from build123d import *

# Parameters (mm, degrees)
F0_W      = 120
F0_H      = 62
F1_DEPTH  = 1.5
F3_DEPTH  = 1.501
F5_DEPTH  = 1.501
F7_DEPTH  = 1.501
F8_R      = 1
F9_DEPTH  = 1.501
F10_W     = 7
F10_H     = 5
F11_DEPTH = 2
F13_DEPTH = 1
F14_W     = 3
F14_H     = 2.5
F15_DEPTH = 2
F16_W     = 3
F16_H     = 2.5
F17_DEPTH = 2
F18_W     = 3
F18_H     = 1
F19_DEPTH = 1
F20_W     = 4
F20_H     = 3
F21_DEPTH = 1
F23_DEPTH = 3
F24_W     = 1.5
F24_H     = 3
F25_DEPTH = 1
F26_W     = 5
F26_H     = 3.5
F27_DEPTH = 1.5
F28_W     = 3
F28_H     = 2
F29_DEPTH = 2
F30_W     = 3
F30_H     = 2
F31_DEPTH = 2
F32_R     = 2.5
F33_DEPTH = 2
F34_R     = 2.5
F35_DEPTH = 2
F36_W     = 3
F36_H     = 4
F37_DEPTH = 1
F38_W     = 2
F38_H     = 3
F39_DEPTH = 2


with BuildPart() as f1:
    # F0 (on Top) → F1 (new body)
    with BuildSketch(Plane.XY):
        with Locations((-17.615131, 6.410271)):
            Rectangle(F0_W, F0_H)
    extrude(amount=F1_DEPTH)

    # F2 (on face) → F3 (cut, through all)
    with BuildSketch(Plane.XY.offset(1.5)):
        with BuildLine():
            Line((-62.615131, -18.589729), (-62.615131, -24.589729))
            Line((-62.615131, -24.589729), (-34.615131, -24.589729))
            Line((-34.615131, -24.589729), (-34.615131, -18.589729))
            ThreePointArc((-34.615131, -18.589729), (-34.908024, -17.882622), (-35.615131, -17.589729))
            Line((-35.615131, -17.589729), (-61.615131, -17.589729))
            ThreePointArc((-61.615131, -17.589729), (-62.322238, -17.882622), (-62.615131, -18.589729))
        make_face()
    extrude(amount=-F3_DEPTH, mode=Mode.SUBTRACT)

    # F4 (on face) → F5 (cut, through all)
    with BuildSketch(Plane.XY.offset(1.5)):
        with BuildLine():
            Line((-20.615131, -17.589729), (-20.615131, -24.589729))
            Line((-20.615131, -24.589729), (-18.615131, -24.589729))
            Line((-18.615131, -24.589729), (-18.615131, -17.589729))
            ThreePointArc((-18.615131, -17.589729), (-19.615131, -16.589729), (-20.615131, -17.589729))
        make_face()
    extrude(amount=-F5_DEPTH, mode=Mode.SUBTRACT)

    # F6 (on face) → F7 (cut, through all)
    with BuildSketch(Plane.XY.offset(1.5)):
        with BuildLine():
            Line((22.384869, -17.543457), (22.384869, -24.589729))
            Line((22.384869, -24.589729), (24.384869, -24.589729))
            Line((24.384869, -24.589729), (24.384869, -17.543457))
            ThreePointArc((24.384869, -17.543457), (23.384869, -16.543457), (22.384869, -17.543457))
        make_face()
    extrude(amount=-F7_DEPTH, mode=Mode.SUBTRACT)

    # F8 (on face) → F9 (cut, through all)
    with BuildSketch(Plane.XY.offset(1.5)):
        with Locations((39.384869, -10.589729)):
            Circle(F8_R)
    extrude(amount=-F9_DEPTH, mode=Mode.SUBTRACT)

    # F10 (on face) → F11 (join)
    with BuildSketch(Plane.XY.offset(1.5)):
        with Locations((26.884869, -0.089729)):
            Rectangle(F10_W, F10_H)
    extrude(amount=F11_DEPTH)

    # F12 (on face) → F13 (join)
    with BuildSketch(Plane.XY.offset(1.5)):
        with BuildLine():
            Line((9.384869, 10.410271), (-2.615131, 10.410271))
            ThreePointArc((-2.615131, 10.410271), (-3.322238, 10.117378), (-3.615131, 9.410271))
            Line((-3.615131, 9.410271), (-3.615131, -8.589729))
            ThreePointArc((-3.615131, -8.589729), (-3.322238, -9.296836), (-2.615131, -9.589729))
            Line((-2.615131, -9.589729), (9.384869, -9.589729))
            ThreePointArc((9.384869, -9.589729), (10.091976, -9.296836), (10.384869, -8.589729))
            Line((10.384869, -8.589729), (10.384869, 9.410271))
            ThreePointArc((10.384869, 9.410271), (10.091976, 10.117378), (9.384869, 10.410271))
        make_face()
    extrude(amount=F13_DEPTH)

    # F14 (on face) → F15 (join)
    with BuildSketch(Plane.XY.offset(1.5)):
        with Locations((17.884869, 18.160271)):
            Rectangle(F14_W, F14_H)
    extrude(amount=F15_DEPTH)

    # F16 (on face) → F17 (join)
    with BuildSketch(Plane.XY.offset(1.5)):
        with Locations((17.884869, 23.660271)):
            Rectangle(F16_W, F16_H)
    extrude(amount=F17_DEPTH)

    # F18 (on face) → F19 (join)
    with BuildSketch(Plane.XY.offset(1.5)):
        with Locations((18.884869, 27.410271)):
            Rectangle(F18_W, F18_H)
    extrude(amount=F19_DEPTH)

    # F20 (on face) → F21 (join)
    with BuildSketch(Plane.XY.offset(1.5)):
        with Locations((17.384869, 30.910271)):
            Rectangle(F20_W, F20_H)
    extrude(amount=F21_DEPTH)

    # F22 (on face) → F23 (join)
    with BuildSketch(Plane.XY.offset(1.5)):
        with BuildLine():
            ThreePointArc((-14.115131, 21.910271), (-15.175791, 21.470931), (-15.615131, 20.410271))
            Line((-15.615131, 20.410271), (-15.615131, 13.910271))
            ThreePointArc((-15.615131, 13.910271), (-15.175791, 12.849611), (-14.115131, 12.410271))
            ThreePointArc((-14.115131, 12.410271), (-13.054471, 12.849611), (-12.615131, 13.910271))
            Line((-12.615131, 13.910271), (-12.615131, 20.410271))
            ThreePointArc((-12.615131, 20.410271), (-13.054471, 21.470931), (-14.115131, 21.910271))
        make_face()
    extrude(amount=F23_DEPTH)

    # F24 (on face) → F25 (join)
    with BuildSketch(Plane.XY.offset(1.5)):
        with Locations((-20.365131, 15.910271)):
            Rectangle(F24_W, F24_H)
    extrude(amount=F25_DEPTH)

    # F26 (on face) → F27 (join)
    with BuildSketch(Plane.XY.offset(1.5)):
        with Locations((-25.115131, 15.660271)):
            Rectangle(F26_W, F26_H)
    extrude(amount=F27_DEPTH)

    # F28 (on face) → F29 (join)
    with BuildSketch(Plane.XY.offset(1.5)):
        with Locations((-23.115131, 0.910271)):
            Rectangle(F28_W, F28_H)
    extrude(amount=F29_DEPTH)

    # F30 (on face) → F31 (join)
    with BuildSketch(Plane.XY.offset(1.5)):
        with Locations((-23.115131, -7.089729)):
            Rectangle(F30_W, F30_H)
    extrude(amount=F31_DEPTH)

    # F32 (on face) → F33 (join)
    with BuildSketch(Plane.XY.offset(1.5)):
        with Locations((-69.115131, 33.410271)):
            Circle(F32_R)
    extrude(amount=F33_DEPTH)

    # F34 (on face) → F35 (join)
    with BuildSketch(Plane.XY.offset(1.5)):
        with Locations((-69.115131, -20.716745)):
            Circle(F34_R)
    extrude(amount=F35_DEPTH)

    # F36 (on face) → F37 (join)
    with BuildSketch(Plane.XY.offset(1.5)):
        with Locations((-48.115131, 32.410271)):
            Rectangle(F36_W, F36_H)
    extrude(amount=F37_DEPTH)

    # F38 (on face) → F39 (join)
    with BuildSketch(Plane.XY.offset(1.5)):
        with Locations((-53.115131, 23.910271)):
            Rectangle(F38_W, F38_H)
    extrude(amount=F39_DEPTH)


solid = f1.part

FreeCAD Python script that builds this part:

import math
import FreeCAD as App
import Part
import Sketcher
Q = App.Units.Quantity


def add_polygon(sketch, points):
    """Adds a closed chain of lines whose ends are joined by coincident constraints."""
    first, n = sketch.GeometryCount, len(points)
    for a, b in zip(points, points[1:] + points[:1]):
        sketch.addGeometry(Part.LineSegment(App.Vector(*a, 0), App.Vector(*b, 0)), False)
    for i in range(n):
        sketch.addConstraint(Sketcher.Constraint("Coincident", first + i, 2, first + (i + 1) % n, 1))

doc = App.newDocument("Part")
body = doc.addObject("PartDesign::Body", "Body")

# Sketch on XY plane
sketch1 = body.newObject("Sketcher::SketchObject", "Sketch")
sketch1.AttachmentSupport = (doc.getObject("XY_Plane"), [""])
sketch1.MapMode = "FlatFace"
add_polygon(sketch1, [(-78, 37), (-78, -25), (42, -25), (42, 37)])  # lines 0-3
sketch1.addConstraint([
    Sketcher.Constraint("Vertical", 0),
    Sketcher.Constraint("Horizontal", 1),
    Sketcher.Constraint("Vertical", 2),
    Sketcher.Constraint("Horizontal", 3),
    Sketcher.Constraint("DistanceX", 1, 1, 1, 2, Q("120 mm")),
    Sketcher.Constraint("DistanceY", 0, 2, 0, 1, Q("62 mm")),
    Sketcher.Constraint("DistanceX", 0, 2, -1, 1, Q("77.615131 mm")),
    Sketcher.Constraint("DistanceY", 0, 2, -1, 1, Q("24.589729 mm")),
])
pad1 = body.newObject("PartDesign::Pad", "Pad")
pad1.Profile = sketch1
pad1.Length = 1.5

# Sketch on XY plane
sketch2 = body.newObject("Sketcher::SketchObject", "Sketch001")
sketch2.AttachmentSupport = (doc.getObject("XY_Plane"), [""])
sketch2.MapMode = "FlatFace"
sketch2.AttachmentOffset = App.Placement(App.Vector(0, 0, 1.5), App.Rotation())
sketch2.addGeometry([
    Part.LineSegment(App.Vector(-62.6, -18.6, 0), App.Vector(-62.6, -24.6, 0)),  # 0
    Part.LineSegment(App.Vector(-62.6, -24.6, 0), App.Vector(-34.6, -24.6, 0)),  # 1
    Part.LineSegment(App.Vector(-34.6, -24.6, 0), App.Vector(-34.6, -18.6, 0)),  # 2
    Part.ArcOfCircle(Part.Circle(App.Vector(-35.6, -18.6, 0), App.Vector(0, 0, 1), 1), math.radians(0), math.radians(90)),  # 3
    Part.LineSegment(App.Vector(-35.6, -17.6, 0), App.Vector(-61.6, -17.6, 0)),  # 4
    Part.ArcOfCircle(Part.Circle(App.Vector(-61.6, -18.6, 0), App.Vector(0, 0, 1), 1), math.radians(90), math.radians(180)),  # 5
], False)
sketch2.addConstraint([
    Sketcher.Constraint("Coincident", 0, 2, 1, 1),
    Sketcher.Constraint("Coincident", 1, 2, 2, 1),
    Sketcher.Constraint("Tangent", 2, 2, 3, 1),
    Sketcher.Constraint("Tangent", 3, 2, 4, 1),
    Sketcher.Constraint("Tangent", 4, 2, 5, 1),
    Sketcher.Constraint("Tangent", 5, 2, 0, 1),
    Sketcher.Constraint("Vertical", 0),
    Sketcher.Constraint("Horizontal", 1),
    Sketcher.Constraint("Vertical", 2),
    Sketcher.Constraint("Horizontal", 4),
    Sketcher.Constraint("Equal", 3, 5),
    Sketcher.Constraint("Radius", 3, Q("0.999999 mm")),
    Sketcher.Constraint("DistanceX", 1, 1, 1, 2, Q("28 mm")),
    Sketcher.Constraint("DistanceY", 0, 2, 0, 1, Q("6 mm")),
    Sketcher.Constraint("DistanceX", 3, 3, -1, 1, Q("35.61513 mm")),
    Sketcher.Constraint("DistanceY", 3, 3, -1, 1, Q("18.589728 mm")),
])
pocket1 = body.newObject("PartDesign::Pocket", "Pocket")
pocket1.Profile = sketch2
pocket1.Type = "ThroughAll"

# Sketch on XY plane
sketch3 = body.newObject("Sketcher::SketchObject", "Sketch002")
sketch3.AttachmentSupport = (doc.getObject("XY_Plane"), [""])
sketch3.MapMode = "FlatFace"
sketch3.AttachmentOffset = App.Placement(App.Vector(0, 0, 1.5), App.Rotation())
sketch3.addGeometry([
    Part.LineSegment(App.Vector(-20.6, -17.6, 0), App.Vector(-20.6, -24.6, 0)),
    Part.LineSegment(App.Vector(-20.6, -24.6, 0), App.Vector(-18.6, -24.6, 0)),
    Part.LineSegment(App.Vector(-18.6, -24.6, 0), App.Vector(-18.6, -17.6, 0)),
    Part.ArcOfCircle(Part.Circle(App.Vector(-19.6, -17.6, 0), App.Vector(0, 0, 1), 1), math.radians(0), math.radians(180)),
], False)
sketch3.addConstraint([
    Sketcher.Constraint("Coincident", 0, 2, 1, 1),
    Sketcher.Constraint("Coincident", 1, 2, 2, 1),
    Sketcher.Constraint("Tangent", 2, 2, 3, 1),
    Sketcher.Constraint("Tangent", 3, 2, 0, 1),
    Sketcher.Constraint("Vertical", 0),
    Sketcher.Constraint("Horizontal", 1),
    Sketcher.Constraint("Vertical", 2),
    Sketcher.Constraint("Radius", 3, Q("1 mm")),
    Sketcher.Constraint("DistanceY", 0, 2, 0, 1, Q("7 mm")),
    Sketcher.Constraint("DistanceX", 3, 3, -1, 1, Q("19.615131 mm")),
    Sketcher.Constraint("DistanceY", 3, 3, -1, 1, Q("17.589729 mm")),
])
pocket2 = body.newObject("PartDesign::Pocket", "Pocket001")
pocket2.Profile = sketch3
pocket2.Type = "ThroughAll"

# Sketch on XY plane
sketch4 = body.newObject("Sketcher::SketchObject", "Sketch003")
sketch4.AttachmentSupport = (doc.getObject("XY_Plane"), [""])
sketch4.MapMode = "FlatFace"
sketch4.AttachmentOffset = App.Placement(App.Vector(0, 0, 1.5), App.Rotation())
sketch4.addGeometry([
    Part.LineSegment(App.Vector(22.4, -17.5, 0), App.Vector(22.4, -24.6, 0)),
    Part.LineSegment(App.Vector(22.4, -24.6, 0), App.Vector(24.4, -24.6, 0)),
    Part.LineSegment(App.Vector(24.4, -24.6, 0), App.Vector(24.4, -17.5, 0)),
    Part.ArcOfCircle(Part.Circle(App.Vector(23.4, -17.5, 0), App.Vector(0, 0, 1), 1), math.radians(0), math.radians(180)),
], False)
sketch4.addConstraint([
    Sketcher.Constraint("Coincident", 0, 2, 1, 1),
    Sketcher.Constraint("Coincident", 1, 2, 2, 1),
    Sketcher.Constraint("Tangent", 2, 2, 3, 1),
    Sketcher.Constraint("Tangent", 3, 2, 0, 1),
    Sketcher.Constraint("Vertical", 0),
    Sketcher.Constraint("Horizontal", 1),
    Sketcher.Constraint("Vertical", 2),
    Sketcher.Constraint("Radius", 3, Q("1 mm")),
    Sketcher.Constraint("DistanceY", 0, 2, 0, 1, Q("7.046272 mm")),
    Sketcher.Constraint("DistanceX", -1, 1, 3, 3, Q("23.384869 mm")),
    Sketcher.Constraint("DistanceY", 0, 2, -1, 1, Q("24.589729 mm")),
])
pocket3 = body.newObject("PartDesign::Pocket", "Pocket002")
pocket3.Profile = sketch4
pocket3.Type = "ThroughAll"

# Sketch on XY plane
sketch5 = body.newObject("Sketcher::SketchObject", "Sketch004")
sketch5.AttachmentSupport = (doc.getObject("XY_Plane"), [""])
sketch5.MapMode = "FlatFace"
sketch5.AttachmentOffset = App.Placement(App.Vector(0, 0, 1.5), App.Rotation())
sketch5.addGeometry(Part.Circle(App.Vector(39.4, -10.6, 0), App.Vector(0, 0, 1), 1), False)
sketch5.addConstraint([
    Sketcher.Constraint("Diameter", 0, Q("2 mm")),
    Sketcher.Constraint("DistanceX", -1, 1, 0, 3, Q("39.384869 mm")),
    Sketcher.Constraint("DistanceY", 0, 3, -1, 1, Q("10.589729 mm")),
])
pocket4 = body.newObject("PartDesign::Pocket", "Pocket003")
pocket4.Profile = sketch5
pocket4.Type = "ThroughAll"

# Sketch on XY plane
sketch6 = body.newObject("Sketcher::SketchObject", "Sketch005")
sketch6.AttachmentSupport = (doc.getObject("XY_Plane"), [""])
sketch6.MapMode = "FlatFace"
sketch6.AttachmentOffset = App.Placement(App.Vector(0, 0, 1.5), App.Rotation())
add_polygon(sketch6, [(23, 2), (23, -3), (30, -3), (30, 2)])  # lines 0-3
sketch6.addConstraint([
    Sketcher.Constraint("Vertical", 0),
    Sketcher.Constraint("Horizontal", 1),
    Sketcher.Constraint("Vertical", 2),
    Sketcher.Constraint("Horizontal", 3),
    Sketcher.Constraint("DistanceX", 1, 1, 1, 2, Q("7 mm")),
    Sketcher.Constraint("DistanceY", 0, 2, 0, 1, Q("5 mm")),
    Sketcher.Constraint("DistanceX", -1, 1, 0, 2, Q("23.384869 mm")),
    Sketcher.Constraint("DistanceY", 0, 2, -1, 1, Q("2.589729 mm")),
])
pad2 = body.newObject("PartDesign::Pad", "Pad001")
pad2.Profile = sketch6
pad2.Length = 2

# Sketch on XY plane
sketch7 = body.newObject("Sketcher::SketchObject", "Sketch006")
sketch7.AttachmentSupport = (doc.getObject("XY_Plane"), [""])
sketch7.MapMode = "FlatFace"
sketch7.AttachmentOffset = App.Placement(App.Vector(0, 0, 1.5), App.Rotation())
sketch7.addGeometry([
    Part.LineSegment(App.Vector(9.4, 10.4, 0), App.Vector(-2.6, 10.4, 0)),  # 0
    Part.ArcOfCircle(Part.Circle(App.Vector(-2.6, 9.4, 0), App.Vector(0, 0, 1), 1), math.radians(90), math.radians(180)),  # 1
    Part.LineSegment(App.Vector(-3.6, 9.4, 0), App.Vector(-3.6, -8.6, 0)),  # 2
    Part.ArcOfCircle(Part.Circle(App.Vector(-2.6, -8.6, 0), App.Vector(0, 0, 1), 1), math.radians(180), math.radians(270)),  # 3
    Part.LineSegment(App.Vector(-2.6, -9.6, 0), App.Vector(9.4, -9.6, 0)),  # 4
    Part.ArcOfCircle(Part.Circle(App.Vector(9.4, -8.6, 0), App.Vector(0, 0, 1), 1), math.radians(-90), math.radians(0)),  # 5
    Part.LineSegment(App.Vector(10.4, -8.6, 0), App.Vector(10.4, 9.4, 0)),  # 6
    Part.ArcOfCircle(Part.Circle(App.Vector(9.4, 9.4, 0), App.Vector(0, 0, 1), 1), math.radians(0), math.radians(90)),  # 7
], False)
sketch7.addConstraint([
    Sketcher.Constraint("Tangent", 0, 2, 1, 1),
    Sketcher.Constraint("Tangent", 1, 2, 2, 1),
    Sketcher.Constraint("Tangent", 2, 2, 3, 1),
    Sketcher.Constraint("Tangent", 3, 2, 4, 1),
    Sketcher.Constraint("Tangent", 4, 2, 5, 1),
    Sketcher.Constraint("Tangent", 5, 2, 6, 1),
    Sketcher.Constraint("Tangent", 6, 2, 7, 1),
    Sketcher.Constraint("Tangent", 7, 2, 0, 1),
    Sketcher.Constraint("Horizontal", 0),
    Sketcher.Constraint("Vertical", 2),
    Sketcher.Constraint("Horizontal", 4),
    Sketcher.Constraint("Vertical", 6),
    Sketcher.Constraint("Equal", 1, 3),
    Sketcher.Constraint("Equal", 3, 5),
    Sketcher.Constraint("Equal", 5, 7),
    Sketcher.Constraint("Radius", 1, Q("0.999999 mm")),
    Sketcher.Constraint("DistanceX", 0, 2, 0, 1, Q("12 mm")),
    Sketcher.Constraint("DistanceY", 2, 2, 2, 1, Q("18 mm")),
    Sketcher.Constraint("DistanceX", 1, 3, -1, 1, Q("2.615132 mm")),
    Sketcher.Constraint("DistanceY", -1, 1, 1, 3, Q("9.410272 mm")),
])
pad3 = body.newObject("PartDesign::Pad", "Pad002")
pad3.Profile = sketch7
pad3.Length = 1

# Sketch on XY plane
sketch8 = body.newObject("Sketcher::SketchObject", "Sketch007")
sketch8.AttachmentSupport = (doc.getObject("XY_Plane"), [""])
sketch8.MapMode = "FlatFace"
sketch8.AttachmentOffset = App.Placement(App.Vector(0, 0, 1.5), App.Rotation())
add_polygon(sketch8, [(16.4, 19.4), (16.4, 16.9), (19.4, 16.9), (19.4, 19.4)])  # lines 0-3
sketch8.addConstraint([
    Sketcher.Constraint("Vertical", 0),
    Sketcher.Constraint("Horizontal", 1),
    Sketcher.Constraint("Vertical", 2),
    Sketcher.Constraint("Horizontal", 3),
    Sketcher.Constraint("DistanceX", 1, 1, 1, 2, Q("3 mm")),
    Sketcher.Constraint("DistanceY", 0, 2, 0, 1, Q("2.5 mm")),
    Sketcher.Constraint("DistanceX", -1, 1, 0, 2, Q("16.384869 mm")),
    Sketcher.Constraint("DistanceY", -1, 1, 0, 2, Q("16.910271 mm")),
])
pad4 = body.newObject("PartDesign::Pad", "Pad003")
pad4.Profile = sketch8
pad4.Length = 2

# Sketch on XY plane
sketch9 = body.newObject("Sketcher::SketchObject", "Sketch008")
sketch9.AttachmentSupport = (doc.getObject("XY_Plane"), [""])
sketch9.MapMode = "FlatFace"
sketch9.AttachmentOffset = App.Placement(App.Vector(0, 0, 1.5), App.Rotation())
add_polygon(sketch9, [(16.4, 24.9), (16.4, 22.4), (19.4, 22.4), (19.4, 24.9)])  # lines 0-3
sketch9.addConstraint([
    Sketcher.Constraint("Vertical", 0),
    Sketcher.Constraint("Horizontal", 1),
    Sketcher.Constraint("Vertical", 2),
    Sketcher.Constraint("Horizontal", 3),
    Sketcher.Constraint("DistanceX", 1, 1, 1, 2, Q("3 mm")),
    Sketcher.Constraint("DistanceY", 0, 2, 0, 1, Q("2.5 mm")),
    Sketcher.Constraint("DistanceX", -1, 1, 0, 2, Q("16.384869 mm")),
    Sketcher.Constraint("DistanceY", -1, 1, 0, 2, Q("22.410271 mm")),
])
pad5 = body.newObject("PartDesign::Pad", "Pad004")
pad5.Profile = sketch9
pad5.Length = 2

# Sketch on XY plane
sketch10 = body.newObject("Sketcher::SketchObject", "Sketch009")
sketch10.AttachmentSupport = (doc.getObject("XY_Plane"), [""])
sketch10.MapMode = "FlatFace"
sketch10.AttachmentOffset = App.Placement(App.Vector(0, 0, 1.5), App.Rotation())
add_polygon(sketch10, [(17.4, 27.9), (17.4, 26.9), (20.4, 26.9), (20.4, 27.9)])  # lines 0-3
sketch10.addConstraint([
    Sketcher.Constraint("Vertical", 0),
    Sketcher.Constraint("Horizontal", 1),
    Sketcher.Constraint("Vertical", 2),
    Sketcher.Constraint("Horizontal", 3),
    Sketcher.Constraint("DistanceX", 1, 1, 1, 2, Q("3 mm")),
    Sketcher.Constraint("DistanceY", 0, 2, 0, 1, Q("1 mm")),
    Sketcher.Constraint("DistanceX", -1, 1, 0, 2, Q("17.384869 mm")),
    Sketcher.Constraint("DistanceY", -1, 1, 0, 2, Q("26.910271 mm")),
])
pad6 = body.newObject("PartDesign::Pad", "Pad005")
pad6.Profile = sketch10
pad6.Length = 1

# Sketch on XY plane
sketch11 = body.newObject("Sketcher::SketchObject", "Sketch010")
sketch11.AttachmentSupport = (doc.getObject("XY_Plane"), [""])
sketch11.MapMode = "FlatFace"
sketch11.AttachmentOffset = App.Placement(App.Vector(0, 0, 1.5), App.Rotation())
add_polygon(sketch11, [(15.4, 32.4), (15.4, 29.4), (19.4, 29.4), (19.4, 32.4)])  # lines 0-3
sketch11.addConstraint([
    Sketcher.Constraint("Vertical", 0),
    Sketcher.Constraint("Horizontal", 1),
    Sketcher.Constraint("Vertical", 2),
    Sketcher.Constraint("Horizontal", 3),
    Sketcher.Constraint("DistanceX", 1, 1, 1, 2, Q("4 mm")),
    Sketcher.Constraint("DistanceY", 0, 2, 0, 1, Q("3 mm")),
    Sketcher.Constraint("DistanceX", -1, 1, 0, 2, Q("15.384869 mm")),
    Sketcher.Constraint("DistanceY", -1, 1, 0, 2, Q("29.410271 mm")),
])
pad7 = body.newObject("PartDesign::Pad", "Pad006")
pad7.Profile = sketch11
pad7.Length = 1

# Sketch on XY plane
sketch12 = body.newObject("Sketcher::SketchObject", "Sketch011")
sketch12.AttachmentSupport = (doc.getObject("XY_Plane"), [""])
sketch12.MapMode = "FlatFace"
sketch12.AttachmentOffset = App.Placement(App.Vector(0, 0, 1.5), App.Rotation())
sketch12.addGeometry([
    Part.ArcOfCircle(Part.Circle(App.Vector(-14.1, 20.4, 0), App.Vector(0, 0, 1), 1.5), math.radians(90), math.radians(180)),  # 0
    Part.LineSegment(App.Vector(-15.6, 20.4, 0), App.Vector(-15.6, 13.9, 0)),  # 1
    Part.ArcOfCircle(Part.Circle(App.Vector(-14.1, 13.9, 0), App.Vector(0, 0, 1), 1.5), math.radians(-180), math.radians(-90)),  # 2
    Part.ArcOfCircle(Part.Circle(App.Vector(-14.1, 13.9, 0), App.Vector(0, 0, 1), 1.5), math.radians(-90), math.radians(0)),  # 3
    Part.LineSegment(App.Vector(-12.6, 13.9, 0), App.Vector(-12.6, 20.4, 0)),  # 4
    Part.ArcOfCircle(Part.Circle(App.Vector(-14.1, 20.4, 0), App.Vector(0, 0, 1), 1.5), math.radians(0), math.radians(90)),  # 5
], False)
sketch12.addConstraint([
    Sketcher.Constraint("Tangent", 0, 2, 1, 1),
    Sketcher.Constraint("Tangent", 1, 2, 2, 1),
    Sketcher.Constraint("Tangent", 2, 2, 3, 1),
    Sketcher.Constraint("Tangent", 3, 2, 4, 1),
    Sketcher.Constraint("Tangent", 4, 2, 5, 1),
    Sketcher.Constraint("Tangent", 5, 2, 0, 1),
    Sketcher.Constraint("Vertical", 1),
    Sketcher.Constraint("Vertical", 4),
    Sketcher.Constraint("Equal", 0, 2),
    Sketcher.Constraint("Equal", 2, 3),
    Sketcher.Constraint("Vertical", 5, 3, 2, 2),
    Sketcher.Constraint("Vertical", 2, 2, 5, 2),
    Sketcher.Constraint("Radius", 0, Q("1.500001 mm")),
    Sketcher.Constraint("DistanceY", 1, 2, 1, 1, Q("6.5 mm")),
    Sketcher.Constraint("DistanceX", 0, 3, -1, 1, Q("14.11513 mm")),
    Sketcher.Constraint("DistanceY", -1, 1, 0, 3, Q("20.41027 mm")),
])
pad8 = body.newObject("PartDesign::Pad", "Pad007")
pad8.Profile = sketch12
pad8.Length = 3

# Sketch on XY plane
sketch13 = body.newObject("Sketcher::SketchObject", "Sketch012")
sketch13.AttachmentSupport = (doc.getObject("XY_Plane"), [""])
sketch13.MapMode = "FlatFace"
sketch13.AttachmentOffset = App.Placement(App.Vector(0, 0, 1.5), App.Rotation())
add_polygon(sketch13, [(-21.1, 17.4), (-21.1, 14.4), (-19.6, 14.4), (-19.6, 17.4)])  # lines 0-3
sketch13.addConstraint([
    Sketcher.Constraint("Vertical", 0),
    Sketcher.Constraint("Horizontal", 1),
    Sketcher.Constraint("Vertical", 2),
    Sketcher.Constraint("Horizontal", 3),
    Sketcher.Constraint("DistanceY", 0, 2, 0, 1, Q("3 mm")),
    Sketcher.Constraint("DistanceX", 1, 1, 1, 2, Q("1.5 mm")),
    Sketcher.Constraint("DistanceX", 0, 2, -1, 1, Q("21.115131 mm")),
    Sketcher.Constraint("DistanceY", -1, 1, 0, 2, Q("14.410271 mm")),
])
pad9 = body.newObject("PartDesign::Pad", "Pad008")
pad9.Profile = sketch13
pad9.Length = 1

# Sketch on XY plane
sketch14 = body.newObject("Sketcher::SketchObject", "Sketch013")
sketch14.AttachmentSupport = (doc.getObject("XY_Plane"), [""])
sketch14.MapMode = "FlatFace"
sketch14.AttachmentOffset = App.Placement(App.Vector(0, 0, 1.5), App.Rotation())
add_polygon(sketch14, [(-27.6, 17.4), (-27.6, 13.9), (-22.6, 13.9), (-22.6, 17.4)])  # lines 0-3
sketch14.addConstraint([
    Sketcher.Constraint("Vertical", 0),
    Sketcher.Constraint("Horizontal", 1),
    Sketcher.Constraint("Vertical", 2),
    Sketcher.Constraint("Horizontal", 3),
    Sketcher.Constraint("DistanceX", 1, 1, 1, 2, Q("5 mm")),
    Sketcher.Constraint("DistanceY", 0, 2, 0, 1, Q("3.5 mm")),
    Sketcher.Constraint("DistanceX", 0, 2, -1, 1, Q("27.615131 mm")),
    Sketcher.Constraint("DistanceY", -1, 1, 0, 2, Q("13.910271 mm")),
])
pad10 = body.newObject("PartDesign::Pad", "Pad009")
pad10.Profile = sketch14
pad10.Length = 1.5

# Sketch on XY plane
sketch15 = body.newObject("Sketcher::SketchObject", "Sketch014")
sketch15.AttachmentSupport = (doc.getObject("XY_Plane"), [""])
sketch15.MapMode = "FlatFace"
sketch15.AttachmentOffset = App.Placement(App.Vector(0, 0, 1.5), App.Rotation())
add_polygon(sketch15, [(-24.6, 1.9), (-24.6, -0.1), (-21.6, -0.1), (-21.6, 1.9)])  # lines 0-3
sketch15.addConstraint([
    Sketcher.Constraint("Vertical", 0),
    Sketcher.Constraint("Horizontal", 1),
    Sketcher.Constraint("Vertical", 2),
    Sketcher.Constraint("Horizontal", 3),
    Sketcher.Constraint("DistanceX", 1, 1, 1, 2, Q("3 mm")),
    Sketcher.Constraint("DistanceY", 0, 2, 0, 1, Q("2 mm")),
    Sketcher.Constraint("DistanceX", 0, 2, -1, 1, Q("24.615131 mm")),
    Sketcher.Constraint("DistanceY", 0, 2, -1, 1, Q("0.089729 mm")),
])
pad11 = body.newObject("PartDesign::Pad", "Pad010")
pad11.Profile = sketch15
pad11.Length = 2

# Sketch on XY plane
sketch16 = body.newObject("Sketcher::SketchObject", "Sketch015")
sketch16.AttachmentSupport = (doc.getObject("XY_Plane"), [""])
sketch16.MapMode = "FlatFace"
sketch16.AttachmentOffset = App.Placement(App.Vector(0, 0, 1.5), App.Rotation())
add_polygon(sketch16, [(-24.6, -6.1), (-24.6, -8.1), (-21.6, -8.1), (-21.6, -6.1)])  # lines 0-3
sketch16.addConstraint([
    Sketcher.Constraint("Vertical", 0),
    Sketcher.Constraint("Horizontal", 1),
    Sketcher.Constraint("Vertical", 2),
    Sketcher.Constraint("Horizontal", 3),
    Sketcher.Constraint("DistanceX", 1, 1, 1, 2, Q("3 mm")),
    Sketcher.Constraint("DistanceY", 0, 2, 0, 1, Q("2 mm")),
    Sketcher.Constraint("DistanceX", 0, 2, -1, 1, Q("24.615131 mm")),
    Sketcher.Constraint("DistanceY", 0, 2, -1, 1, Q("8.089729 mm")),
])
pad12 = body.newObject("PartDesign::Pad", "Pad011")
pad12.Profile = sketch16
pad12.Length = 2

# Sketch on XY plane
sketch17 = body.newObject("Sketcher::SketchObject", "Sketch016")
sketch17.AttachmentSupport = (doc.getObject("XY_Plane"), [""])
sketch17.MapMode = "FlatFace"
sketch17.AttachmentOffset = App.Placement(App.Vector(0, 0, 1.5), App.Rotation())
sketch17.addGeometry(Part.Circle(App.Vector(-69.1, 33.4, 0), App.Vector(0, 0, 1), 2.5), False)
sketch17.addConstraint([
    Sketcher.Constraint("Diameter", 0, Q("5 mm")),
    Sketcher.Constraint("DistanceX", 0, 3, -1, 1, Q("69.115131 mm")),
    Sketcher.Constraint("DistanceY", -1, 1, 0, 3, Q("33.410271 mm")),
])
pad13 = body.newObject("PartDesign::Pad", "Pad012")
pad13.Profile = sketch17
pad13.Length = 2

# Sketch on XY plane
sketch18 = body.newObject("Sketcher::SketchObject", "Sketch017")
sketch18.AttachmentSupport = (doc.getObject("XY_Plane"), [""])
sketch18.MapMode = "FlatFace"
sketch18.AttachmentOffset = App.Placement(App.Vector(0, 0, 1.5), App.Rotation())
sketch18.addGeometry(Part.Circle(App.Vector(-69.1, -20.7, 0), App.Vector(0, 0, 1), 2.5), False)
sketch18.addConstraint([
    Sketcher.Constraint("Diameter", 0, Q("5 mm")),
    Sketcher.Constraint("DistanceX", 0, 3, -1, 1, Q("69.115131 mm")),
    Sketcher.Constraint("DistanceY", 0, 3, -1, 1, Q("20.716745 mm")),
])
pad14 = body.newObject("PartDesign::Pad", "Pad013")
pad14.Profile = sketch18
pad14.Length = 2

# Sketch on XY plane
sketch19 = body.newObject("Sketcher::SketchObject", "Sketch018")
sketch19.AttachmentSupport = (doc.getObject("XY_Plane"), [""])
sketch19.MapMode = "FlatFace"
sketch19.AttachmentOffset = App.Placement(App.Vector(0, 0, 1.5), App.Rotation())
add_polygon(sketch19, [(-49.6, 34.4), (-49.6, 30.4), (-46.6, 30.4), (-46.6, 34.4)])  # lines 0-3
sketch19.addConstraint([
    Sketcher.Constraint("Vertical", 0),
    Sketcher.Constraint("Horizontal", 1),
    Sketcher.Constraint("Vertical", 2),
    Sketcher.Constraint("Horizontal", 3),
    Sketcher.Constraint("DistanceX", 1, 1, 1, 2, Q("3 mm")),
    Sketcher.Constraint("DistanceY", 0, 2, 0, 1, Q("4 mm")),
    Sketcher.Constraint("DistanceX", 0, 2, -1, 1, Q("49.615131 mm")),
    Sketcher.Constraint("DistanceY", -1, 1, 0, 2, Q("30.410271 mm")),
])
pad15 = body.newObject("PartDesign::Pad", "Pad014")
pad15.Profile = sketch19
pad15.Length = 1

# Sketch on XY plane
sketch20 = body.newObject("Sketcher::SketchObject", "Sketch019")
sketch20.AttachmentSupport = (doc.getObject("XY_Plane"), [""])
sketch20.MapMode = "FlatFace"
sketch20.AttachmentOffset = App.Placement(App.Vector(0, 0, 1.5), App.Rotation())
add_polygon(sketch20, [(-54.1, 25.4), (-54.1, 22.4), (-52.1, 22.4), (-52.1, 25.4)])  # lines 0-3
sketch20.addConstraint([
    Sketcher.Constraint("Vertical", 0),
    Sketcher.Constraint("Horizontal", 1),
    Sketcher.Constraint("Vertical", 2),
    Sketcher.Constraint("Horizontal", 3),
    Sketcher.Constraint("DistanceX", 1, 1, 1, 2, Q("2 mm")),
    Sketcher.Constraint("DistanceY", 0, 2, 0, 1, Q("3 mm")),
    Sketcher.Constraint("DistanceX", 0, 2, -1, 1, Q("54.115131 mm")),
    Sketcher.Constraint("DistanceY", -1, 1, 0, 2, Q("22.410271 mm")),
])
pad16 = body.newObject("PartDesign::Pad", "Pad015")
pad16.Profile = sketch20
pad16.Length = 2

doc.recompute()
